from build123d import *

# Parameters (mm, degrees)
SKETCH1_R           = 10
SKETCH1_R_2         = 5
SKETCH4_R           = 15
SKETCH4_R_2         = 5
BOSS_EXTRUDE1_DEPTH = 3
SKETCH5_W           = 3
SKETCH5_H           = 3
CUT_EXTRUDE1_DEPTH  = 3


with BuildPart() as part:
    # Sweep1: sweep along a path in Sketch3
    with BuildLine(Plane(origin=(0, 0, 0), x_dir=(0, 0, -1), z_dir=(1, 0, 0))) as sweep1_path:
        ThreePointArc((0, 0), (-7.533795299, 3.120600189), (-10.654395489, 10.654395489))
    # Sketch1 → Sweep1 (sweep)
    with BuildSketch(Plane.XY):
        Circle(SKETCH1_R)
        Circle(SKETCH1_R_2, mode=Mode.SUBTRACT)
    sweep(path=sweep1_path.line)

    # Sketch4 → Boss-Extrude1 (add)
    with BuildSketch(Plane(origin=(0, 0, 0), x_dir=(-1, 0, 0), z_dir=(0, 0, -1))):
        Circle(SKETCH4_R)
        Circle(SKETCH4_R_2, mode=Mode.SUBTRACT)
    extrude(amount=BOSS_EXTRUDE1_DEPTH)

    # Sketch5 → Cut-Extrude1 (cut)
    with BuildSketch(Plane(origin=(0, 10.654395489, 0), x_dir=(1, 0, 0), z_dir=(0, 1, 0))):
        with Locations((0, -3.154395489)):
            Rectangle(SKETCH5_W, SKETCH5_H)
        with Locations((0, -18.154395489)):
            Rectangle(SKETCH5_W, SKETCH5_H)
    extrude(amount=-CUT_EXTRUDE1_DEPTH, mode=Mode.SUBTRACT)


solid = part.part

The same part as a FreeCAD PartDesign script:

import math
import FreeCAD as App
import Part
import Sketcher

V = App.Vector
Q = App.Units.Quantity


def add_polygon(sketch, points):
    """Adds a closed chain of lines whose ends are joined by coincident constraints."""
    first, n = sketch.GeometryCount, len(points)
    for a, b in zip(points, points[1:] + points[:1]):
        sketch.addGeometry(Part.LineSegment(App.Vector(*a, 0), App.Vector(*b, 0)), False)
    for i in range(n):
        sketch.addConstraint(Sketcher.Constraint("Coincident", first + i, 2, first + (i + 1) % n, 1))

doc = App.newDocument("Part")
body = doc.addObject("PartDesign::Body", "Body")

# Sketch on XY plane
sketch1 = body.newObject("Sketcher::SketchObject", "Sketch")
sketch1.AttachmentSupport = (doc.getObject("XY_Plane"), [""])
sketch1.MapMode = "FlatFace"
sketch1.addGeometry([
    Part.Circle(V(0, 0, 0), V(0, 0, 1), 10),
    Part.Circle(V(0, 0, 0), V(0, 0, 1), 5),
], False)
sketch1.addConstraint([
    Sketcher.Constraint("Coincident", 0, 3, -1, 1),
    Sketcher.Constraint("Coincident", 1, 3, -1, 1),
    Sketcher.Constraint("Diameter", 0, Q("20 mm")),
    Sketcher.Constraint("Diameter", 1, Q("10 mm")),
])

# Sketch on YZ plane
sketch2 = body.newObject("Sketcher::SketchObject", "Sketch001")
sketch2.AttachmentSupport = (doc.getObject("YZ_Plane"), [""])
sketch2.MapMode = "FlatFace"
sketch2.addGeometry(Part.ArcOfCircle(Part.Circle(V(11, 0, 0), V(0, 0, 1), 11), math.radians(90), math.radians(180)), False)
sketch2.addConstraint([
    Sketcher.Constraint("Coincident", 0, 2, -1, 1),
    Sketcher.Constraint("PointOnObject", 0, 3, -1),
    Sketcher.Constraint("Radius", 0, Q("10.654395 mm")),
    Sketcher.Constraint("DistanceX", -1, 1, 0, 1, Q("10.654395 mm")),
])
doc.recompute()

additivepipe = body.newObject("PartDesign::AdditivePipe", "AdditivePipe")
additivepipe.Profile = sketch1
additivepipe.Spine = (sketch2, ["Edge1"])

# Sketch on XY plane
sketch3 = body.newObject("Sketcher::SketchObject", "Sketch002")
sketch3.AttachmentSupport = (doc.getObject("XY_Plane"), [""])
sketch3.MapMode = "FlatFace"
sketch3.addGeometry([
    Part.Circle(V(0, 0, 0), V(0, 0, 1), 15),
    Part.Circle(V(0, 0, 0), V(0, 0, 1), 5),
], False)
sketch3.addConstraint([
    Sketcher.Constraint("Coincident", 0, 3, -1, 1),
    Sketcher.Constraint("Coincident", 1, 3, -1, 1),
    Sketcher.Constraint("Diameter", 0, Q("30 mm")),
    Sketcher.Constraint("Diameter", 1, Q("10 mm")),
])
pad1 = body.newObject("PartDesign::Pad", "Pad")
pad1.Profile = sketch3
pad1.Length = 3
pad1.Reversed = True

# Sketch on XZ plane
sketch4 = body.newObject("Sketcher::SketchObject", "Sketch003")
sketch4.AttachmentSupport = (doc.getObject("XZ_Plane"), [""])
sketch4.MapMode = "FlatFace"
sketch4.AttachmentOffset = App.Placement(V(0, 0, -10.654395), App.Rotation())
add_polygon(sketch4, [(-1.5, 1.7), (-1.5, 4.7), (1.5, 4.7), (1.5, 1.7)])  # lines 0-3
add_polygon(sketch4, [(-1.5, 16.7), (-1.5, 19.7), (1.5, 19.7), (1.5, 16.7)])  # lines 4-7
sketch4.addConstraint([
    Sketcher.Constraint("Vertical", 0),
    Sketcher.Constraint("Horizontal", 1),
    Sketcher.Constraint("Vertical", 2),
    Sketcher.Constraint("Horizontal", 3),
    Sketcher.Constraint("Vertical", 4),
    Sketcher.Constraint("Horizontal", 5),
    Sketcher.Constraint("Vertical", 6),
    Sketcher.Constraint("Horizontal", 7),
    Sketcher.Constraint("Vertical", 3, 2, 4, 2),
    Sketcher.Constraint("Vertical", 2, 2, 5, 2),
    Sketcher.Constraint("Equal", 7, 0),
    Sketcher.Constraint("Equal", 2, 4),
    Sketcher.Constraint("DistanceX", 1, 1, 1, 2, Q("3 mm")),
    Sketcher.Constraint("DistanceY", 0, 2, 4, 2, Q("15 mm")),
    Sketcher.Constraint("DistanceX", 0, 2, -1, 1, Q("1.5 mm")),
    Sketcher.Constraint("DistanceY", -1, 1, 0, 2, Q("4.654395 mm")),
])
pocket1 = body.newObject("PartDesign::Pocket", "Pocket")
pocket1.Profile = sketch4
pocket1.Length = 3
pocket1.Reversed = True

doc.recompute()
